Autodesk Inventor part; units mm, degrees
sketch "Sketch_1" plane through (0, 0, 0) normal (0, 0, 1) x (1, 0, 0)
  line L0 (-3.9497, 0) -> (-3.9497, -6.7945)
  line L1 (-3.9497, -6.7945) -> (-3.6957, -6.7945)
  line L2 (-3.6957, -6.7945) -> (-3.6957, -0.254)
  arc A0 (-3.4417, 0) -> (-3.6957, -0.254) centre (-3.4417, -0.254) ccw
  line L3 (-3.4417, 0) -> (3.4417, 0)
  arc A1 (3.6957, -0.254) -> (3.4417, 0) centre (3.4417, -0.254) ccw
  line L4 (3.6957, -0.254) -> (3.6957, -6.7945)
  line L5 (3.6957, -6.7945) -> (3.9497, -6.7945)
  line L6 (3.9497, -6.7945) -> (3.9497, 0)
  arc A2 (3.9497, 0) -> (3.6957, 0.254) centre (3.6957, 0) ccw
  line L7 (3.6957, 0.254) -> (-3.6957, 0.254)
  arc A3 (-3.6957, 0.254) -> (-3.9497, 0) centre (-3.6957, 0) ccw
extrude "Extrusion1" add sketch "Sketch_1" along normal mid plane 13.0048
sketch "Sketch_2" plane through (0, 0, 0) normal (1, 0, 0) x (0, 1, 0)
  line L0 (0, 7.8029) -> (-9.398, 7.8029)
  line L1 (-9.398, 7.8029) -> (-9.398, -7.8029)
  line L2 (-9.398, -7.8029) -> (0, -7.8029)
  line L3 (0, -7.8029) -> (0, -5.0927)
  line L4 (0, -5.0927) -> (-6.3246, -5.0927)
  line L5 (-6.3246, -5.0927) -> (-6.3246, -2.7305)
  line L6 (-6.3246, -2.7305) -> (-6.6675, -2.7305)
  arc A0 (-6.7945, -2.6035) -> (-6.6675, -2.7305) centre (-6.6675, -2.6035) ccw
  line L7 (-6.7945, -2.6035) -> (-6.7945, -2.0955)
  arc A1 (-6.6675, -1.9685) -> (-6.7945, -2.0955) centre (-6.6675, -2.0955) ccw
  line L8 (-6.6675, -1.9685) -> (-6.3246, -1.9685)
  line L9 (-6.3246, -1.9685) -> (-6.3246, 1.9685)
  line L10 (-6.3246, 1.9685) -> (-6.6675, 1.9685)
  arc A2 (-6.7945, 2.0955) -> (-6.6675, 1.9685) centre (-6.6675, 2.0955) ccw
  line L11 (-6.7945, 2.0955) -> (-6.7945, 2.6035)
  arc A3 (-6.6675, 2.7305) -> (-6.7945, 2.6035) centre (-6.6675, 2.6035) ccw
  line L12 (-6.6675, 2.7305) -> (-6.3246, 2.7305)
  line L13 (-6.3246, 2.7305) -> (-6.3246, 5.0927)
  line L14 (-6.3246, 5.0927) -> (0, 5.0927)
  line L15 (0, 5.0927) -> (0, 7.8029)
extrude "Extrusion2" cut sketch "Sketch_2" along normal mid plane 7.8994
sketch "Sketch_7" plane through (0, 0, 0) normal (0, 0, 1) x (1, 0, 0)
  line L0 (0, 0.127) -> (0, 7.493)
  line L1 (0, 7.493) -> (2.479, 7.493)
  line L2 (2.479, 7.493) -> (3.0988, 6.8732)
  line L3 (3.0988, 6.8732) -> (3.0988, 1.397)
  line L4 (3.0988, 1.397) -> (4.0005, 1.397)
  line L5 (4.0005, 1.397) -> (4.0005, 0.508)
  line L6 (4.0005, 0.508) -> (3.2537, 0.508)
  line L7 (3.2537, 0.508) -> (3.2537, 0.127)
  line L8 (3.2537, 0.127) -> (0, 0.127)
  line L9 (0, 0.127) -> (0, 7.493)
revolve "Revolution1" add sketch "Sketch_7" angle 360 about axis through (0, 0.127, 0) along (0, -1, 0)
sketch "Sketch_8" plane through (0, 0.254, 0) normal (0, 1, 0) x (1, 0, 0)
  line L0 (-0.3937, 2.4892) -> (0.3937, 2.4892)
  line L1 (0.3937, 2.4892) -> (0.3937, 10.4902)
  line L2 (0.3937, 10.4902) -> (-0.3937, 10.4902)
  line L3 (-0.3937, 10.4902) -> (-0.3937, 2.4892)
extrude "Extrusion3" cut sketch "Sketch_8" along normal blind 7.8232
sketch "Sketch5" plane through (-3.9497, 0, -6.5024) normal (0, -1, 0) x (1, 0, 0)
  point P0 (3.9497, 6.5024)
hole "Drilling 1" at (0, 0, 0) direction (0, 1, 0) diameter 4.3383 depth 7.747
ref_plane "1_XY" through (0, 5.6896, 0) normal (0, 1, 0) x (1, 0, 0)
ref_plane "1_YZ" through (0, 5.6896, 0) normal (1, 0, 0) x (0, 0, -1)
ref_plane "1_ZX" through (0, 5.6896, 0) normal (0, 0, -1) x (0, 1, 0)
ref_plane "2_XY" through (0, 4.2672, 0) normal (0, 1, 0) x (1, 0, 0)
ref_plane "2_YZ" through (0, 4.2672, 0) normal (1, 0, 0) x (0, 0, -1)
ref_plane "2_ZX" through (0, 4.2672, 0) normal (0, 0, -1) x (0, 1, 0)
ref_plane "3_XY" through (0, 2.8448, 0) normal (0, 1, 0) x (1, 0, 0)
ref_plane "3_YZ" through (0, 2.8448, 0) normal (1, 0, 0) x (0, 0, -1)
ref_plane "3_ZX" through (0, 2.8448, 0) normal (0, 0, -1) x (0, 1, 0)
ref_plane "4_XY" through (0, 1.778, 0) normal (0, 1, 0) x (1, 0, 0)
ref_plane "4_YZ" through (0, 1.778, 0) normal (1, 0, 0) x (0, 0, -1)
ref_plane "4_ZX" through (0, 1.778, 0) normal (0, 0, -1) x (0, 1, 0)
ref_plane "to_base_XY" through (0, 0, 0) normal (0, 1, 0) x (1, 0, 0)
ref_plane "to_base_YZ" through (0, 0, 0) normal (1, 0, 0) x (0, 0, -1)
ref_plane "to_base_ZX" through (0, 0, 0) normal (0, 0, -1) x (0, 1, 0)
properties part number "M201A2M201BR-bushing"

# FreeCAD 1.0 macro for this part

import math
import FreeCAD as App
import Part
import Sketcher
from FreeCAD import Vector
Q = App.Units.Quantity


def add_polygon(sketch, points):
    """Adds a closed chain of lines whose ends are joined by coincident constraints."""
    first, n = sketch.GeometryCount, len(points)
    for a, b in zip(points, points[1:] + points[:1]):
        sketch.addGeometry(Part.LineSegment(App.Vector(*a, 0), App.Vector(*b, 0)), False)
    for i in range(n):
        sketch.addConstraint(Sketcher.Constraint("Coincident", first + i, 2, first + (i + 1) % n, 1))

doc = App.newDocument("Part")
body = doc.addObject("PartDesign::Body", "Body")

# Sketch on XY plane
sketch1 = doc.addObject("Sketcher::SketchObject", "Sketch")
body.addObject(sketch1)
sketch1.AttachmentSupport = (doc.XY_Plane, [""])
sketch1.MapMode = "FlatFace"
sketch1.addGeometry(Part.ArcOfCircle(Part.Circle(Vector(-3.7, 0, 0), Vector(0, 0, 1), 0.25), math.radians(90), math.radians(180)), False)
sketch1.addGeometry(Part.LineSegment(Vector(-3.95, 0, 0), Vector(-3.95, -6.79, 0)), False)
sketch1.addGeometry(Part.LineSegment(Vector(-3.95, -6.79, 0), Vector(-3.7, -6.79, 0)), False)
sketch1.addGeometry(Part.LineSegment(Vector(-3.7, -6.79, 0), Vector(-3.7, -0.25, 0)), False)
sketch1.addGeometry(Part.ArcOfCircle(Part.Circle(Vector(-3.44, -0.25, 0), Vector(0, 0, 1), 0.25), math.radians(90), math.radians(180)), False)
sketch1.addGeometry(Part.LineSegment(Vector(-3.44, 0, 0), Vector(3.44, 0, 0)), False)
sketch1.addGeometry(Part.ArcOfCircle(Part.Circle(Vector(3.44, -0.25, 0), Vector(0, 0, 1), 0.25), math.radians(0), math.radians(90)), False)
sketch1.addGeometry(Part.LineSegment(Vector(3.7, -0.25, 0), Vector(3.7, -6.79, 0)), False)
sketch1.addGeometry(Part.LineSegment(Vector(3.7, -6.79, 0), Vector(3.95, -6.79, 0)), False)
sketch1.addGeometry(Part.LineSegment(Vector(3.95, -6.79, 0), Vector(3.95, 0, 0)), False)
sketch1.addGeometry(Part.ArcOfCircle(Part.Circle(Vector(3.7, 0, 0), Vector(0, 0, 1), 0.25), math.radians(0), math.radians(90)), False)
sketch1.addGeometry(Part.LineSegment(Vector(3.7, 0.25, 0), Vector(-3.7, 0.25, 0)), False)
sketch1.addConstraint(Sketcher.Constraint("Tangent", 0, 2, 1, 1))
sketch1.addConstraint(Sketcher.Constraint("Coincident", 1, 2, 2, 1))
sketch1.addConstraint(Sketcher.Constraint("Coincident", 2, 2, 3, 1))
sketch1.addConstraint(Sketcher.Constraint("Tangent", 3, 2, 4, 2))
sketch1.addConstraint(Sketcher.Constraint("Tangent", 4, 1, 5, 1))
sketch1.addConstraint(Sketcher.Constraint("Tangent", 5, 2, 6, 2))
sketch1.addConstraint(Sketcher.Constraint("Tangent", 6, 1, 7, 1))
sketch1.addConstraint(Sketcher.Constraint("Coincident", 7, 2, 8, 1))
sketch1.addConstraint(Sketcher.Constraint("Coincident", 8, 2, 9, 1))
sketch1.addConstraint(Sketcher.Constraint("Tangent", 9, 2, 10, 1))
sketch1.addConstraint(Sketcher.Constraint("Tangent", 10, 2, 11, 1))
sketch1.addConstraint(Sketcher.Constraint("Tangent", 11, 2, 0, 1))
sketch1.addConstraint(Sketcher.Constraint("Vertical", 1))
sketch1.addConstraint(Sketcher.Constraint("Horizontal", 2))
sketch1.addConstraint(Sketcher.Constraint("Vertical", 3))
sketch1.addConstraint(Sketcher.Constraint("Horizontal", 5))
sketch1.addConstraint(Sketcher.Constraint("Vertical", 7))
sketch1.addConstraint(Sketcher.Constraint("Horizontal", 8))
sketch1.addConstraint(Sketcher.Constraint("Vertical", 9))
sketch1.addConstraint(Sketcher.Constraint("Horizontal", 11))
sketch1.addConstraint(Sketcher.Constraint("Equal", 0, 4))
sketch1.addConstraint(Sketcher.Constraint("Equal", 4, 6))
sketch1.addConstraint(Sketcher.Constraint("Equal", 6, 10))
sketch1.addConstraint(Sketcher.Constraint("Symmetric", 0, 3, 10, 3, -1, 1))
sketch1.addConstraint(Sketcher.Constraint("Symmetric", 4, 1, 5, 2, -1, 1))
sketch1.addConstraint(Sketcher.Constraint("Horizontal", 2, 2, 7, 2))
sketch1.addConstraint(Sketcher.Constraint("Vertical", 0, 3, 2, 2))
sketch1.addConstraint(Sketcher.Constraint("Radius", 0, Q("0.01 in")))
sketch1.addConstraint(Sketcher.Constraint("DistanceX", 5, 1, 5, 2, Q("0.271 in")))
sketch1.addConstraint(Sketcher.Constraint("DistanceY", 1, 2, 1, 1, Q("0.2675 in")))
pad1 = doc.addObject("PartDesign::Pad", "Pad")
body.addObject(pad1)
pad1.Profile = sketch1
pad1.Length = Q("0.512 in")
pad1.Midplane = True

# Sketch on YZ plane
sketch2 = doc.addObject("Sketcher::SketchObject", "Sketch001")
body.addObject(sketch2)
sketch2.AttachmentSupport = (doc.YZ_Plane, [""])
sketch2.MapMode = "FlatFace"
sketch2.addGeometry(Part.LineSegment(Vector(0, 5.09, 0), Vector(0, 7.8, 0)), False)
sketch2.addGeometry(Part.LineSegment(Vector(0, 7.8, 0), Vector(-9.4, 7.8, 0)), False)
sketch2.addGeometry(Part.LineSegment(Vector(-9.4, 7.8, 0), Vector(-9.4, -7.8, 0)), False)
sketch2.addGeometry(Part.LineSegment(Vector(-9.4, -7.8, 0), Vector(0, -7.8, 0)), False)
sketch2.addGeometry(Part.LineSegment(Vector(0, -7.8, 0), Vector(0, -5.09, 0)), False)
sketch2.addGeometry(Part.LineSegment(Vector(0, -5.09, 0), Vector(-6.32, -5.09, 0)), False)
sketch2.addGeometry(Part.LineSegment(Vector(-6.32, -5.09, 0), Vector(-6.32, -2.73, 0)), False)
sketch2.addGeometry(Part.LineSegment(Vector(-6.32, -2.73, 0), Vector(-6.67, -2.73, 0)), False)
sketch2.addGeometry(Part.ArcOfCircle(Part.Circle(Vector(-6.67, -2.6, 0), Vector(0, 0, 1), 0.13), math.radians(180), math.radians(270)), False)
sketch2.addGeometry(Part.LineSegment(Vector(-6.79, -2.6, 0), Vector(-6.79, -2.1, 0)), False)
sketch2.addGeometry(Part.ArcOfCircle(Part.Circle(Vector(-6.67, -2.1, 0), Vector(0, 0, 1), 0.13), math.radians(90), math.radians(180)), False)
sketch2.addGeometry(Part.LineSegment(Vector(-6.67, -1.97, 0), Vector(-6.32, -1.97, 0)), False)
sketch2.addGeometry(Part.LineSegment(Vector(-6.32, -1.97, 0), Vector(-6.32, 1.97, 0)), False)
sketch2.addGeometry(Part.LineSegment(Vector(-6.32, 1.97, 0), Vector(-6.67, 1.97, 0)), False)
sketch2.addGeometry(Part.ArcOfCircle(Part.Circle(Vector(-6.67, 2.1, 0), Vector(0, 0, 1), 0.13), math.radians(180), math.radians(270)), False)
sketch2.addGeometry(Part.LineSegment(Vector(-6.79, 2.1, 0), Vector(-6.79, 2.6, 0)), False)
sketch2.addGeometry(Part.ArcOfCircle(Part.Circle(Vector(-6.67, 2.6, 0), Vector(0, 0, 1), 0.13), math.radians(90), math.radians(180)), False)
sketch2.addGeometry(Part.LineSegment(Vector(-6.67, 2.73, 0), Vector(-6.32, 2.73, 0)), False)
sketch2.addGeometry(Part.LineSegment(Vector(-6.32, 2.73, 0), Vector(-6.32, 5.09, 0)), False)
sketch2.addGeometry(Part.LineSegment(Vector(-6.32, 5.09, 0), Vector(0, 5.09, 0)), False)
sketch2.addConstraint(Sketcher.Constraint("Coincident", 0, 2, 1, 1))
sketch2.addConstraint(Sketcher.Constraint("Coincident", 1, 2, 2, 1))
sketch2.addConstraint(Sketcher.Constraint("Coincident", 2, 2, 3, 1))
sketch2.addConstraint(Sketcher.Constraint("Coincident", 3, 2, 4, 1))
sketch2.addConstraint(Sketcher.Constraint("Coincident", 4, 2, 5, 1))
sketch2.addConstraint(Sketcher.Constraint("Coincident", 5, 2, 6, 1))
sketch2.addConstraint(Sketcher.Constraint("Coincident", 6, 2, 7, 1))
sketch2.addConstraint(Sketcher.Constraint("Tangent", 7, 2, 8, 2))
sketch2.addConstraint(Sketcher.Constraint("Tangent", 8, 1, 9, 1))
sketch2.addConstraint(Sketcher.Constraint("Tangent", 9, 2, 10, 2))
sketch2.addConstraint(Sketcher.Constraint("Tangent", 10, 1, 11, 1))
sketch2.addConstraint(Sketcher.Constraint("Coincident", 11, 2, 12, 1))
sketch2.addConstraint(Sketcher.Constraint("Coincident", 12, 2, 13, 1))
sketch2.addConstraint(Sketcher.Constraint("Tangent", 13, 2, 14, 2))
sketch2.addConstraint(Sketcher.Constraint("Tangent", 14, 1, 15, 1))
sketch2.addConstraint(Sketcher.Constraint("Tangent", 15, 2, 16, 2))
sketch2.addConstraint(Sketcher.Constraint("Tangent", 16, 1, 17, 1))
sketch2.addConstraint(Sketcher.Constraint("Coincident", 17, 2, 18, 1))
sketch2.addConstraint(Sketcher.Constraint("Coincident", 18, 2, 19, 1))
sketch2.addConstraint(Sketcher.Constraint("Coincident", 19, 2, 0, 1))
sketch2.addConstraint(Sketcher.Constraint("Vertical", 0))
sketch2.addConstraint(Sketcher.Constraint("Horizontal", 1))
sketch2.addConstraint(Sketcher.Constraint("Vertical", 2))
sketch2.addConstraint(Sketcher.Constraint("Horizontal", 3))
sketch2.addConstraint(Sketcher.Constraint("Vertical", 4))
sketch2.addConstraint(Sketcher.Constraint("Horizontal", 5))
sketch2.addConstraint(Sketcher.Constraint("Vertical", 6))
sketch2.addConstraint(Sketcher.Constraint("Horizontal", 7))
sketch2.addConstraint(Sketcher.Constraint("Vertical", 9))
sketch2.addConstraint(Sketcher.Constraint("Horizontal", 11))
sketch2.addConstraint(Sketcher.Constraint("Vertical", 12))
sketch2.addConstraint(Sketcher.Constraint("Horizontal", 13))
sketch2.addConstraint(Sketcher.Constraint("Vertical", 15))
sketch2.addConstraint(Sketcher.Constraint("Horizontal", 17))
sketch2.addConstraint(Sketcher.Constraint("Vertical", 18))
sketch2.addConstraint(Sketcher.Constraint("Horizontal", 19))
sketch2.addConstraint(Sketcher.Constraint("Equal", 8, 10))
sketch2.addConstraint(Sketcher.Constraint("Equal", 10, 14))
sketch2.addConstraint(Sketcher.Constraint("Equal", 14, 16))
sketch2.addConstraint(Sketcher.Constraint("Symmetric", 0, 2, 3, 2, -1, 1))
sketch2.addConstraint(Sketcher.Constraint("Symmetric", 10, 3, 14, 3, -1))
sketch2.addConstraint(Sketcher.Constraint("Symmetric", 6, 2, 17, 2, -1))
sketch2.addConstraint(Sketcher.Constraint("Symmetric", 4, 2, 19, 2, -1))
sketch2.addConstraint(Sketcher.Constraint("Vertical", 6, 2, 11, 2))
sketch2.addConstraint(Sketcher.Constraint("Radius", 8, Q("0.005 in")))
sketch2.addConstraint(Sketcher.Constraint("DistanceX", 1, 2, 1, 1, Q("0.37 in")))
sketch2.addConstraint(Sketcher.Constraint("DistanceY", 9, 1, 9, 2, Q("0.02 in")))
sketch2.addConstraint(Sketcher.Constraint("DistanceX", 5, 2, 5, 1, Q("0.249 in")))
sketch2.addConstraint(Sketcher.Constraint("DistanceY", 6, 1, 6, 2, Q("0.093 in")))
sketch2.addConstraint(Sketcher.Constraint("DistanceY", 12, 1, 12, 2, Q("0.155 in")))
sketch2.addConstraint(Sketcher.Constraint("DistanceX", 7, 2, 7, 1, Q("0.0135 in")))
sketch2.addConstraint(Sketcher.Constraint("DistanceY", 0, 1, 0, 2, Q("0.1067 in")))
pocket1 = doc.addObject("PartDesign::Pocket", "Pocket")
body.addObject(pocket1)
pocket1.Profile = sketch2
pocket1.Length = Q("0.311 in")
pocket1.Midplane = True

# Sketch on XY plane
sketch3 = doc.addObject("Sketcher::SketchObject", "Sketch002")
body.addObject(sketch3)
sketch3.AttachmentSupport = (doc.XY_Plane, [""])
sketch3.MapMode = "FlatFace"
add_polygon(sketch3, [(0, 7.49), (0, 0.13), (3.25, 0.13), (3.25, 0.51), (4, 0.51), (4, 1.4), (3.1, 1.4), (3.1, 6.87), (2.48, 7.49)])  # lines 0-8
sketch3.addConstraint(Sketcher.Constraint("Vertical", 0))
sketch3.addConstraint(Sketcher.Constraint("Horizontal", 1))
sketch3.addConstraint(Sketcher.Constraint("Vertical", 2))
sketch3.addConstraint(Sketcher.Constraint("Horizontal", 3))
sketch3.addConstraint(Sketcher.Constraint("Vertical", 4))
sketch3.addConstraint(Sketcher.Constraint("Horizontal", 5))
sketch3.addConstraint(Sketcher.Constraint("Vertical", 6))
sketch3.addConstraint(Sketcher.Constraint("Horizontal", 8))
sketch3.addConstraint(Sketcher.Constraint("PointOnObject", 0, 2, -2))
sketch3.addConstraint(Sketcher.Constraint("Angle", 7, Q("135 deg")))
sketch3.addConstraint(Sketcher.Constraint("DistanceY", 0, 2, 0, 1, Q("0.29 in")))
sketch3.addConstraint(Sketcher.Constraint("DistanceY", 2, 1, 2, 2, Q("0.015 in")))
sketch3.addConstraint(Sketcher.Constraint("DistanceY", 4, 1, 4, 2, Q("0.035 in")))
sketch3.addConstraint(Sketcher.Constraint("DistanceY", -1, 1, 2, 2, Q("0.02 in")))
sketch3.addConstraint(Sketcher.Constraint("DistanceX", 1, 1, 1, 2, Q("0.1281 in")))
sketch3.addConstraint(Sketcher.Constraint("DistanceX", 3, 1, 3, 2, Q("0.0294 in")))
sketch3.addConstraint(Sketcher.Constraint("DistanceX", 5, 2, 5, 1, Q("0.0355 in")))
sketch3.addConstraint(Sketcher.Constraint("DistanceX", 8, 2, 8, 1, Q("0.0976 in")))
revolution = doc.addObject("PartDesign::Revolution", "Revolution")
body.addObject(revolution)
revolution.Profile = sketch3
revolution.ReferenceAxis = (sketch3, ["V_Axis"])
revolution.Angle = 360

# Sketch on XZ plane
sketch4 = doc.addObject("Sketcher::SketchObject", "Sketch003")
body.addObject(sketch4)
sketch4.AttachmentSupport = (doc.XZ_Plane, [""])
sketch4.MapMode = "FlatFace"
sketch4.AttachmentOffset = App.Placement(Vector(0, 0, -0.01 * 25.4), App.Rotation())
add_polygon(sketch4, [(-0.4, -10.5), (-0.4, -2.5), (0.4, -2.5), (0.4, -10.5)])  # lines 0-3
sketch4.addConstraint(Sketcher.Constraint("Vertical", 0))
sketch4.addConstraint(Sketcher.Constraint("Horizontal", 1))
sketch4.addConstraint(Sketcher.Constraint("Vertical", 2))
sketch4.addConstraint(Sketcher.Constraint("Horizontal", 3))
sketch4.addConstraint(Sketcher.Constraint("DistanceX", 1, 1, 1, 2, Q("0.031 in")))
sketch4.addConstraint(Sketcher.Constraint("DistanceY", 0, 1, 0, 2, Q("0.315 in")))
sketch4.addConstraint(Sketcher.Constraint("DistanceY", 0, 2, -1, 1, Q("0.098 in")))
sketch4.addConstraint(Sketcher.Constraint("DistanceX", 0, 2, -1, 1, Q("0.0155 in")))
pocket2 = doc.addObject("PartDesign::Pocket", "Pocket001")
body.addObject(pocket2)
pocket2.Profile = sketch4
pocket2.Length = Q("0.308 in")

# Sketch on XZ plane
sketch5 = doc.addObject("Sketcher::SketchObject", "Sketch004")
body.addObject(sketch5)
sketch5.AttachmentSupport = (doc.XZ_Plane, [""])
sketch5.MapMode = "FlatFace"
sketch5.addGeometry(Part.Circle(Vector(0, 0, 0), Vector(0, 0, 1), 2.2), False)
sketch5.addConstraint(Sketcher.Constraint("Coincident", 0, 3, -1, 1))
sketch5.addConstraint(Sketcher.Constraint("Diameter", 0, Q("0.1708 in")))
doc.recompute()
hole = doc.addObject("PartDesign::Hole", "Hole")
body.addObject(hole)
hole.Profile = sketch5
hole.ThreadType = "None"
hole.Diameter = Q("0.1707992 in")
hole.DepthType = "Dimension"
hole.Depth = Q("0.305 in")
hole.DrillPoint = "Flat"

doc.recompute()
